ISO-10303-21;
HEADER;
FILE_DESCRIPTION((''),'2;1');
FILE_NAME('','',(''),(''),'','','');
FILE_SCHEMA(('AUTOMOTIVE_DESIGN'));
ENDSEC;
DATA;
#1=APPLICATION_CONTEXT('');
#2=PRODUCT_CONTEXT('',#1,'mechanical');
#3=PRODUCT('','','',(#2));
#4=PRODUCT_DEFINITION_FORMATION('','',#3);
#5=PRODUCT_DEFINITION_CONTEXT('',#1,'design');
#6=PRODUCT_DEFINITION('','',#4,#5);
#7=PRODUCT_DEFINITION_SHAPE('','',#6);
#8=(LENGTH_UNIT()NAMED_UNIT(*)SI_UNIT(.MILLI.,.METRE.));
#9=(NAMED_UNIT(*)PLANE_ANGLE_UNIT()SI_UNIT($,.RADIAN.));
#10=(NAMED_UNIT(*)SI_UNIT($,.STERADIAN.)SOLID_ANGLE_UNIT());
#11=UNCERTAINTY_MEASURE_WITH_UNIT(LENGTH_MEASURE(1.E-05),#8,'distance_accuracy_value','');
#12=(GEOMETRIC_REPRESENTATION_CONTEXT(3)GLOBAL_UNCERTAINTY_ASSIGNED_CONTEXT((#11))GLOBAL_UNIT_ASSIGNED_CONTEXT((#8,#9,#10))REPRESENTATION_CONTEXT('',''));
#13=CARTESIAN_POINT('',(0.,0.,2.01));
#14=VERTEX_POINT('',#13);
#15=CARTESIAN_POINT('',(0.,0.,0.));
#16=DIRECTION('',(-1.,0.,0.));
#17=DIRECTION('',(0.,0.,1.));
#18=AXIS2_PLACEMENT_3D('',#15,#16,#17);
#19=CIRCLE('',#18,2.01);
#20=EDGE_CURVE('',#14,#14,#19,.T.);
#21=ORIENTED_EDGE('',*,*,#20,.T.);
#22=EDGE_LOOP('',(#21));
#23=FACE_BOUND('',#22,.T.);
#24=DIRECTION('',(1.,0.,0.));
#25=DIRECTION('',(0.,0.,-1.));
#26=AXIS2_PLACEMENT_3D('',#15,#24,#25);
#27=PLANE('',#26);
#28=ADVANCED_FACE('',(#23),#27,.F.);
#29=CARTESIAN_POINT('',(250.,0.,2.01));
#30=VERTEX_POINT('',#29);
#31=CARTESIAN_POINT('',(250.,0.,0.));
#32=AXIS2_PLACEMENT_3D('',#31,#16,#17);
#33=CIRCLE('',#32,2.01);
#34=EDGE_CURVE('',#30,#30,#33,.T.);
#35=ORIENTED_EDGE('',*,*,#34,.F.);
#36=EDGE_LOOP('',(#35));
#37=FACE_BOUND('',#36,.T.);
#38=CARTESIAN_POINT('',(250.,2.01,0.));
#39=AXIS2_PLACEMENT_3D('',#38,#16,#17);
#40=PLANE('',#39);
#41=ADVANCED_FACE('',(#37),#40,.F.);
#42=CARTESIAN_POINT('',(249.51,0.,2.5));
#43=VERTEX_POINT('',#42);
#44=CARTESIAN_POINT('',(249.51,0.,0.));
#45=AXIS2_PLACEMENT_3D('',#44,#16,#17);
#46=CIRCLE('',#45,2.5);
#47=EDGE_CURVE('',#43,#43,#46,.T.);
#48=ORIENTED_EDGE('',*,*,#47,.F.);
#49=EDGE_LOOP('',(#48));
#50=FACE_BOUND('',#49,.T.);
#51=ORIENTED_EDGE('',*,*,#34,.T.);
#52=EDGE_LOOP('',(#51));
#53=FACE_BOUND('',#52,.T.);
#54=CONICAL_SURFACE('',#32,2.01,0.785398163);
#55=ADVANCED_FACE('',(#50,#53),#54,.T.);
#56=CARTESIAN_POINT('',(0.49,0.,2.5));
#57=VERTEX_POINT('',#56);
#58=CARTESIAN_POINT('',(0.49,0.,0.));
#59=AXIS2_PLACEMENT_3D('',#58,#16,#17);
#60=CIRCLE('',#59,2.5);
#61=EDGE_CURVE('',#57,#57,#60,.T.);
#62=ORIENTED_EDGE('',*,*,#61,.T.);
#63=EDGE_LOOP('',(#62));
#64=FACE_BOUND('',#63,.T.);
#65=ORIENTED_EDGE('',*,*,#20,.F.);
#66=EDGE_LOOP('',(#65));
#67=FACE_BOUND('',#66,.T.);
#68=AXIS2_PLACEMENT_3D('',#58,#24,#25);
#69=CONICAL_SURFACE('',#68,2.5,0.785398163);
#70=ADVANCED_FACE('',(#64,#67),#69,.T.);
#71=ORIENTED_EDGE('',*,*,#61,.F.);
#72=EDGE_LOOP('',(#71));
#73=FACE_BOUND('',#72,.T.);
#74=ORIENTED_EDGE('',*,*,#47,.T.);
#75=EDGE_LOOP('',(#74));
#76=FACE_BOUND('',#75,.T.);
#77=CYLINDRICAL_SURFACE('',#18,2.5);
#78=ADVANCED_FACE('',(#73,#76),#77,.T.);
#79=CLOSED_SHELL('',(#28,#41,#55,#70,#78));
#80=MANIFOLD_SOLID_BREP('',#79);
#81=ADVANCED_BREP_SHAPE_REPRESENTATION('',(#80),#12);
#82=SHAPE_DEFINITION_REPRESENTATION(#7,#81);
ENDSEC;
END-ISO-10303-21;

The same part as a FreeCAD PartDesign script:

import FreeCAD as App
import Part
import Sketcher

V = App.Vector
Q = App.Units.Quantity

doc = App.newDocument("Part")
body = doc.addObject("PartDesign::Body", "Body")

sketch1 = body.newObject("Sketcher::SketchObject", "Sketch")
sketch1.AttachmentSupport = (doc.getObject("XY_Plane"), [""])
sketch1.MapMode = "FlatFace"
sketch1.addGeometry([
    Part.LineSegment(V(0, 2, 0), V(0, 0, 0)),
    Part.LineSegment(V(0, 0, 0), V(250, 0, 0)),
    Part.LineSegment(V(250, 0, 0), V(250, 2, 0)),
    Part.LineSegment(V(250, 2, 0), V(249.5, 2.5, 0)),
    Part.LineSegment(V(249.5, 2.5, 0), V(0.5, 2.5, 0)),
    Part.LineSegment(V(0.5, 2.5, 0), V(0, 2, 0)),
], False)
sketch1.addConstraint([
    Sketcher.Constraint("Coincident", 0, 2, 1, 1),
    Sketcher.Constraint("Coincident", 1, 2, 2, 1),
    Sketcher.Constraint("Coincident", 2, 2, 3, 1),
    Sketcher.Constraint("Coincident", 3, 2, 4, 1),
    Sketcher.Constraint("Coincident", 4, 2, 5, 1),
    Sketcher.Constraint("Coincident", 5, 2, 0, 1),
    Sketcher.Constraint("Vertical", 0),
    Sketcher.Constraint("Horizontal", 1),
    Sketcher.Constraint("Vertical", 2),
    Sketcher.Constraint("Horizontal", 4),
    Sketcher.Constraint("Coincident", 0, 2, -1, 1),
    Sketcher.Constraint("Perpendicular", 3, 5),
    Sketcher.Constraint("Horizontal", 2, 2, 5, 2),
    Sketcher.Constraint("Equal", 3, 5),
    Sketcher.Constraint("DistanceX", 1, 1, 1, 2, Q("250 mm")),
    Sketcher.Constraint("DistanceX", 4, 2, 4, 1, Q("249.02 mm")),
    Sketcher.Constraint("DistanceY", 0, 2, 0, 1, Q("2.01 mm")),
])
revolution = body.newObject("PartDesign::Revolution", "Revolution")
revolution.Profile = sketch1
revolution.ReferenceAxis = (sketch1, ["H_Axis"])
revolution.Angle = 360

doc.recompute()
